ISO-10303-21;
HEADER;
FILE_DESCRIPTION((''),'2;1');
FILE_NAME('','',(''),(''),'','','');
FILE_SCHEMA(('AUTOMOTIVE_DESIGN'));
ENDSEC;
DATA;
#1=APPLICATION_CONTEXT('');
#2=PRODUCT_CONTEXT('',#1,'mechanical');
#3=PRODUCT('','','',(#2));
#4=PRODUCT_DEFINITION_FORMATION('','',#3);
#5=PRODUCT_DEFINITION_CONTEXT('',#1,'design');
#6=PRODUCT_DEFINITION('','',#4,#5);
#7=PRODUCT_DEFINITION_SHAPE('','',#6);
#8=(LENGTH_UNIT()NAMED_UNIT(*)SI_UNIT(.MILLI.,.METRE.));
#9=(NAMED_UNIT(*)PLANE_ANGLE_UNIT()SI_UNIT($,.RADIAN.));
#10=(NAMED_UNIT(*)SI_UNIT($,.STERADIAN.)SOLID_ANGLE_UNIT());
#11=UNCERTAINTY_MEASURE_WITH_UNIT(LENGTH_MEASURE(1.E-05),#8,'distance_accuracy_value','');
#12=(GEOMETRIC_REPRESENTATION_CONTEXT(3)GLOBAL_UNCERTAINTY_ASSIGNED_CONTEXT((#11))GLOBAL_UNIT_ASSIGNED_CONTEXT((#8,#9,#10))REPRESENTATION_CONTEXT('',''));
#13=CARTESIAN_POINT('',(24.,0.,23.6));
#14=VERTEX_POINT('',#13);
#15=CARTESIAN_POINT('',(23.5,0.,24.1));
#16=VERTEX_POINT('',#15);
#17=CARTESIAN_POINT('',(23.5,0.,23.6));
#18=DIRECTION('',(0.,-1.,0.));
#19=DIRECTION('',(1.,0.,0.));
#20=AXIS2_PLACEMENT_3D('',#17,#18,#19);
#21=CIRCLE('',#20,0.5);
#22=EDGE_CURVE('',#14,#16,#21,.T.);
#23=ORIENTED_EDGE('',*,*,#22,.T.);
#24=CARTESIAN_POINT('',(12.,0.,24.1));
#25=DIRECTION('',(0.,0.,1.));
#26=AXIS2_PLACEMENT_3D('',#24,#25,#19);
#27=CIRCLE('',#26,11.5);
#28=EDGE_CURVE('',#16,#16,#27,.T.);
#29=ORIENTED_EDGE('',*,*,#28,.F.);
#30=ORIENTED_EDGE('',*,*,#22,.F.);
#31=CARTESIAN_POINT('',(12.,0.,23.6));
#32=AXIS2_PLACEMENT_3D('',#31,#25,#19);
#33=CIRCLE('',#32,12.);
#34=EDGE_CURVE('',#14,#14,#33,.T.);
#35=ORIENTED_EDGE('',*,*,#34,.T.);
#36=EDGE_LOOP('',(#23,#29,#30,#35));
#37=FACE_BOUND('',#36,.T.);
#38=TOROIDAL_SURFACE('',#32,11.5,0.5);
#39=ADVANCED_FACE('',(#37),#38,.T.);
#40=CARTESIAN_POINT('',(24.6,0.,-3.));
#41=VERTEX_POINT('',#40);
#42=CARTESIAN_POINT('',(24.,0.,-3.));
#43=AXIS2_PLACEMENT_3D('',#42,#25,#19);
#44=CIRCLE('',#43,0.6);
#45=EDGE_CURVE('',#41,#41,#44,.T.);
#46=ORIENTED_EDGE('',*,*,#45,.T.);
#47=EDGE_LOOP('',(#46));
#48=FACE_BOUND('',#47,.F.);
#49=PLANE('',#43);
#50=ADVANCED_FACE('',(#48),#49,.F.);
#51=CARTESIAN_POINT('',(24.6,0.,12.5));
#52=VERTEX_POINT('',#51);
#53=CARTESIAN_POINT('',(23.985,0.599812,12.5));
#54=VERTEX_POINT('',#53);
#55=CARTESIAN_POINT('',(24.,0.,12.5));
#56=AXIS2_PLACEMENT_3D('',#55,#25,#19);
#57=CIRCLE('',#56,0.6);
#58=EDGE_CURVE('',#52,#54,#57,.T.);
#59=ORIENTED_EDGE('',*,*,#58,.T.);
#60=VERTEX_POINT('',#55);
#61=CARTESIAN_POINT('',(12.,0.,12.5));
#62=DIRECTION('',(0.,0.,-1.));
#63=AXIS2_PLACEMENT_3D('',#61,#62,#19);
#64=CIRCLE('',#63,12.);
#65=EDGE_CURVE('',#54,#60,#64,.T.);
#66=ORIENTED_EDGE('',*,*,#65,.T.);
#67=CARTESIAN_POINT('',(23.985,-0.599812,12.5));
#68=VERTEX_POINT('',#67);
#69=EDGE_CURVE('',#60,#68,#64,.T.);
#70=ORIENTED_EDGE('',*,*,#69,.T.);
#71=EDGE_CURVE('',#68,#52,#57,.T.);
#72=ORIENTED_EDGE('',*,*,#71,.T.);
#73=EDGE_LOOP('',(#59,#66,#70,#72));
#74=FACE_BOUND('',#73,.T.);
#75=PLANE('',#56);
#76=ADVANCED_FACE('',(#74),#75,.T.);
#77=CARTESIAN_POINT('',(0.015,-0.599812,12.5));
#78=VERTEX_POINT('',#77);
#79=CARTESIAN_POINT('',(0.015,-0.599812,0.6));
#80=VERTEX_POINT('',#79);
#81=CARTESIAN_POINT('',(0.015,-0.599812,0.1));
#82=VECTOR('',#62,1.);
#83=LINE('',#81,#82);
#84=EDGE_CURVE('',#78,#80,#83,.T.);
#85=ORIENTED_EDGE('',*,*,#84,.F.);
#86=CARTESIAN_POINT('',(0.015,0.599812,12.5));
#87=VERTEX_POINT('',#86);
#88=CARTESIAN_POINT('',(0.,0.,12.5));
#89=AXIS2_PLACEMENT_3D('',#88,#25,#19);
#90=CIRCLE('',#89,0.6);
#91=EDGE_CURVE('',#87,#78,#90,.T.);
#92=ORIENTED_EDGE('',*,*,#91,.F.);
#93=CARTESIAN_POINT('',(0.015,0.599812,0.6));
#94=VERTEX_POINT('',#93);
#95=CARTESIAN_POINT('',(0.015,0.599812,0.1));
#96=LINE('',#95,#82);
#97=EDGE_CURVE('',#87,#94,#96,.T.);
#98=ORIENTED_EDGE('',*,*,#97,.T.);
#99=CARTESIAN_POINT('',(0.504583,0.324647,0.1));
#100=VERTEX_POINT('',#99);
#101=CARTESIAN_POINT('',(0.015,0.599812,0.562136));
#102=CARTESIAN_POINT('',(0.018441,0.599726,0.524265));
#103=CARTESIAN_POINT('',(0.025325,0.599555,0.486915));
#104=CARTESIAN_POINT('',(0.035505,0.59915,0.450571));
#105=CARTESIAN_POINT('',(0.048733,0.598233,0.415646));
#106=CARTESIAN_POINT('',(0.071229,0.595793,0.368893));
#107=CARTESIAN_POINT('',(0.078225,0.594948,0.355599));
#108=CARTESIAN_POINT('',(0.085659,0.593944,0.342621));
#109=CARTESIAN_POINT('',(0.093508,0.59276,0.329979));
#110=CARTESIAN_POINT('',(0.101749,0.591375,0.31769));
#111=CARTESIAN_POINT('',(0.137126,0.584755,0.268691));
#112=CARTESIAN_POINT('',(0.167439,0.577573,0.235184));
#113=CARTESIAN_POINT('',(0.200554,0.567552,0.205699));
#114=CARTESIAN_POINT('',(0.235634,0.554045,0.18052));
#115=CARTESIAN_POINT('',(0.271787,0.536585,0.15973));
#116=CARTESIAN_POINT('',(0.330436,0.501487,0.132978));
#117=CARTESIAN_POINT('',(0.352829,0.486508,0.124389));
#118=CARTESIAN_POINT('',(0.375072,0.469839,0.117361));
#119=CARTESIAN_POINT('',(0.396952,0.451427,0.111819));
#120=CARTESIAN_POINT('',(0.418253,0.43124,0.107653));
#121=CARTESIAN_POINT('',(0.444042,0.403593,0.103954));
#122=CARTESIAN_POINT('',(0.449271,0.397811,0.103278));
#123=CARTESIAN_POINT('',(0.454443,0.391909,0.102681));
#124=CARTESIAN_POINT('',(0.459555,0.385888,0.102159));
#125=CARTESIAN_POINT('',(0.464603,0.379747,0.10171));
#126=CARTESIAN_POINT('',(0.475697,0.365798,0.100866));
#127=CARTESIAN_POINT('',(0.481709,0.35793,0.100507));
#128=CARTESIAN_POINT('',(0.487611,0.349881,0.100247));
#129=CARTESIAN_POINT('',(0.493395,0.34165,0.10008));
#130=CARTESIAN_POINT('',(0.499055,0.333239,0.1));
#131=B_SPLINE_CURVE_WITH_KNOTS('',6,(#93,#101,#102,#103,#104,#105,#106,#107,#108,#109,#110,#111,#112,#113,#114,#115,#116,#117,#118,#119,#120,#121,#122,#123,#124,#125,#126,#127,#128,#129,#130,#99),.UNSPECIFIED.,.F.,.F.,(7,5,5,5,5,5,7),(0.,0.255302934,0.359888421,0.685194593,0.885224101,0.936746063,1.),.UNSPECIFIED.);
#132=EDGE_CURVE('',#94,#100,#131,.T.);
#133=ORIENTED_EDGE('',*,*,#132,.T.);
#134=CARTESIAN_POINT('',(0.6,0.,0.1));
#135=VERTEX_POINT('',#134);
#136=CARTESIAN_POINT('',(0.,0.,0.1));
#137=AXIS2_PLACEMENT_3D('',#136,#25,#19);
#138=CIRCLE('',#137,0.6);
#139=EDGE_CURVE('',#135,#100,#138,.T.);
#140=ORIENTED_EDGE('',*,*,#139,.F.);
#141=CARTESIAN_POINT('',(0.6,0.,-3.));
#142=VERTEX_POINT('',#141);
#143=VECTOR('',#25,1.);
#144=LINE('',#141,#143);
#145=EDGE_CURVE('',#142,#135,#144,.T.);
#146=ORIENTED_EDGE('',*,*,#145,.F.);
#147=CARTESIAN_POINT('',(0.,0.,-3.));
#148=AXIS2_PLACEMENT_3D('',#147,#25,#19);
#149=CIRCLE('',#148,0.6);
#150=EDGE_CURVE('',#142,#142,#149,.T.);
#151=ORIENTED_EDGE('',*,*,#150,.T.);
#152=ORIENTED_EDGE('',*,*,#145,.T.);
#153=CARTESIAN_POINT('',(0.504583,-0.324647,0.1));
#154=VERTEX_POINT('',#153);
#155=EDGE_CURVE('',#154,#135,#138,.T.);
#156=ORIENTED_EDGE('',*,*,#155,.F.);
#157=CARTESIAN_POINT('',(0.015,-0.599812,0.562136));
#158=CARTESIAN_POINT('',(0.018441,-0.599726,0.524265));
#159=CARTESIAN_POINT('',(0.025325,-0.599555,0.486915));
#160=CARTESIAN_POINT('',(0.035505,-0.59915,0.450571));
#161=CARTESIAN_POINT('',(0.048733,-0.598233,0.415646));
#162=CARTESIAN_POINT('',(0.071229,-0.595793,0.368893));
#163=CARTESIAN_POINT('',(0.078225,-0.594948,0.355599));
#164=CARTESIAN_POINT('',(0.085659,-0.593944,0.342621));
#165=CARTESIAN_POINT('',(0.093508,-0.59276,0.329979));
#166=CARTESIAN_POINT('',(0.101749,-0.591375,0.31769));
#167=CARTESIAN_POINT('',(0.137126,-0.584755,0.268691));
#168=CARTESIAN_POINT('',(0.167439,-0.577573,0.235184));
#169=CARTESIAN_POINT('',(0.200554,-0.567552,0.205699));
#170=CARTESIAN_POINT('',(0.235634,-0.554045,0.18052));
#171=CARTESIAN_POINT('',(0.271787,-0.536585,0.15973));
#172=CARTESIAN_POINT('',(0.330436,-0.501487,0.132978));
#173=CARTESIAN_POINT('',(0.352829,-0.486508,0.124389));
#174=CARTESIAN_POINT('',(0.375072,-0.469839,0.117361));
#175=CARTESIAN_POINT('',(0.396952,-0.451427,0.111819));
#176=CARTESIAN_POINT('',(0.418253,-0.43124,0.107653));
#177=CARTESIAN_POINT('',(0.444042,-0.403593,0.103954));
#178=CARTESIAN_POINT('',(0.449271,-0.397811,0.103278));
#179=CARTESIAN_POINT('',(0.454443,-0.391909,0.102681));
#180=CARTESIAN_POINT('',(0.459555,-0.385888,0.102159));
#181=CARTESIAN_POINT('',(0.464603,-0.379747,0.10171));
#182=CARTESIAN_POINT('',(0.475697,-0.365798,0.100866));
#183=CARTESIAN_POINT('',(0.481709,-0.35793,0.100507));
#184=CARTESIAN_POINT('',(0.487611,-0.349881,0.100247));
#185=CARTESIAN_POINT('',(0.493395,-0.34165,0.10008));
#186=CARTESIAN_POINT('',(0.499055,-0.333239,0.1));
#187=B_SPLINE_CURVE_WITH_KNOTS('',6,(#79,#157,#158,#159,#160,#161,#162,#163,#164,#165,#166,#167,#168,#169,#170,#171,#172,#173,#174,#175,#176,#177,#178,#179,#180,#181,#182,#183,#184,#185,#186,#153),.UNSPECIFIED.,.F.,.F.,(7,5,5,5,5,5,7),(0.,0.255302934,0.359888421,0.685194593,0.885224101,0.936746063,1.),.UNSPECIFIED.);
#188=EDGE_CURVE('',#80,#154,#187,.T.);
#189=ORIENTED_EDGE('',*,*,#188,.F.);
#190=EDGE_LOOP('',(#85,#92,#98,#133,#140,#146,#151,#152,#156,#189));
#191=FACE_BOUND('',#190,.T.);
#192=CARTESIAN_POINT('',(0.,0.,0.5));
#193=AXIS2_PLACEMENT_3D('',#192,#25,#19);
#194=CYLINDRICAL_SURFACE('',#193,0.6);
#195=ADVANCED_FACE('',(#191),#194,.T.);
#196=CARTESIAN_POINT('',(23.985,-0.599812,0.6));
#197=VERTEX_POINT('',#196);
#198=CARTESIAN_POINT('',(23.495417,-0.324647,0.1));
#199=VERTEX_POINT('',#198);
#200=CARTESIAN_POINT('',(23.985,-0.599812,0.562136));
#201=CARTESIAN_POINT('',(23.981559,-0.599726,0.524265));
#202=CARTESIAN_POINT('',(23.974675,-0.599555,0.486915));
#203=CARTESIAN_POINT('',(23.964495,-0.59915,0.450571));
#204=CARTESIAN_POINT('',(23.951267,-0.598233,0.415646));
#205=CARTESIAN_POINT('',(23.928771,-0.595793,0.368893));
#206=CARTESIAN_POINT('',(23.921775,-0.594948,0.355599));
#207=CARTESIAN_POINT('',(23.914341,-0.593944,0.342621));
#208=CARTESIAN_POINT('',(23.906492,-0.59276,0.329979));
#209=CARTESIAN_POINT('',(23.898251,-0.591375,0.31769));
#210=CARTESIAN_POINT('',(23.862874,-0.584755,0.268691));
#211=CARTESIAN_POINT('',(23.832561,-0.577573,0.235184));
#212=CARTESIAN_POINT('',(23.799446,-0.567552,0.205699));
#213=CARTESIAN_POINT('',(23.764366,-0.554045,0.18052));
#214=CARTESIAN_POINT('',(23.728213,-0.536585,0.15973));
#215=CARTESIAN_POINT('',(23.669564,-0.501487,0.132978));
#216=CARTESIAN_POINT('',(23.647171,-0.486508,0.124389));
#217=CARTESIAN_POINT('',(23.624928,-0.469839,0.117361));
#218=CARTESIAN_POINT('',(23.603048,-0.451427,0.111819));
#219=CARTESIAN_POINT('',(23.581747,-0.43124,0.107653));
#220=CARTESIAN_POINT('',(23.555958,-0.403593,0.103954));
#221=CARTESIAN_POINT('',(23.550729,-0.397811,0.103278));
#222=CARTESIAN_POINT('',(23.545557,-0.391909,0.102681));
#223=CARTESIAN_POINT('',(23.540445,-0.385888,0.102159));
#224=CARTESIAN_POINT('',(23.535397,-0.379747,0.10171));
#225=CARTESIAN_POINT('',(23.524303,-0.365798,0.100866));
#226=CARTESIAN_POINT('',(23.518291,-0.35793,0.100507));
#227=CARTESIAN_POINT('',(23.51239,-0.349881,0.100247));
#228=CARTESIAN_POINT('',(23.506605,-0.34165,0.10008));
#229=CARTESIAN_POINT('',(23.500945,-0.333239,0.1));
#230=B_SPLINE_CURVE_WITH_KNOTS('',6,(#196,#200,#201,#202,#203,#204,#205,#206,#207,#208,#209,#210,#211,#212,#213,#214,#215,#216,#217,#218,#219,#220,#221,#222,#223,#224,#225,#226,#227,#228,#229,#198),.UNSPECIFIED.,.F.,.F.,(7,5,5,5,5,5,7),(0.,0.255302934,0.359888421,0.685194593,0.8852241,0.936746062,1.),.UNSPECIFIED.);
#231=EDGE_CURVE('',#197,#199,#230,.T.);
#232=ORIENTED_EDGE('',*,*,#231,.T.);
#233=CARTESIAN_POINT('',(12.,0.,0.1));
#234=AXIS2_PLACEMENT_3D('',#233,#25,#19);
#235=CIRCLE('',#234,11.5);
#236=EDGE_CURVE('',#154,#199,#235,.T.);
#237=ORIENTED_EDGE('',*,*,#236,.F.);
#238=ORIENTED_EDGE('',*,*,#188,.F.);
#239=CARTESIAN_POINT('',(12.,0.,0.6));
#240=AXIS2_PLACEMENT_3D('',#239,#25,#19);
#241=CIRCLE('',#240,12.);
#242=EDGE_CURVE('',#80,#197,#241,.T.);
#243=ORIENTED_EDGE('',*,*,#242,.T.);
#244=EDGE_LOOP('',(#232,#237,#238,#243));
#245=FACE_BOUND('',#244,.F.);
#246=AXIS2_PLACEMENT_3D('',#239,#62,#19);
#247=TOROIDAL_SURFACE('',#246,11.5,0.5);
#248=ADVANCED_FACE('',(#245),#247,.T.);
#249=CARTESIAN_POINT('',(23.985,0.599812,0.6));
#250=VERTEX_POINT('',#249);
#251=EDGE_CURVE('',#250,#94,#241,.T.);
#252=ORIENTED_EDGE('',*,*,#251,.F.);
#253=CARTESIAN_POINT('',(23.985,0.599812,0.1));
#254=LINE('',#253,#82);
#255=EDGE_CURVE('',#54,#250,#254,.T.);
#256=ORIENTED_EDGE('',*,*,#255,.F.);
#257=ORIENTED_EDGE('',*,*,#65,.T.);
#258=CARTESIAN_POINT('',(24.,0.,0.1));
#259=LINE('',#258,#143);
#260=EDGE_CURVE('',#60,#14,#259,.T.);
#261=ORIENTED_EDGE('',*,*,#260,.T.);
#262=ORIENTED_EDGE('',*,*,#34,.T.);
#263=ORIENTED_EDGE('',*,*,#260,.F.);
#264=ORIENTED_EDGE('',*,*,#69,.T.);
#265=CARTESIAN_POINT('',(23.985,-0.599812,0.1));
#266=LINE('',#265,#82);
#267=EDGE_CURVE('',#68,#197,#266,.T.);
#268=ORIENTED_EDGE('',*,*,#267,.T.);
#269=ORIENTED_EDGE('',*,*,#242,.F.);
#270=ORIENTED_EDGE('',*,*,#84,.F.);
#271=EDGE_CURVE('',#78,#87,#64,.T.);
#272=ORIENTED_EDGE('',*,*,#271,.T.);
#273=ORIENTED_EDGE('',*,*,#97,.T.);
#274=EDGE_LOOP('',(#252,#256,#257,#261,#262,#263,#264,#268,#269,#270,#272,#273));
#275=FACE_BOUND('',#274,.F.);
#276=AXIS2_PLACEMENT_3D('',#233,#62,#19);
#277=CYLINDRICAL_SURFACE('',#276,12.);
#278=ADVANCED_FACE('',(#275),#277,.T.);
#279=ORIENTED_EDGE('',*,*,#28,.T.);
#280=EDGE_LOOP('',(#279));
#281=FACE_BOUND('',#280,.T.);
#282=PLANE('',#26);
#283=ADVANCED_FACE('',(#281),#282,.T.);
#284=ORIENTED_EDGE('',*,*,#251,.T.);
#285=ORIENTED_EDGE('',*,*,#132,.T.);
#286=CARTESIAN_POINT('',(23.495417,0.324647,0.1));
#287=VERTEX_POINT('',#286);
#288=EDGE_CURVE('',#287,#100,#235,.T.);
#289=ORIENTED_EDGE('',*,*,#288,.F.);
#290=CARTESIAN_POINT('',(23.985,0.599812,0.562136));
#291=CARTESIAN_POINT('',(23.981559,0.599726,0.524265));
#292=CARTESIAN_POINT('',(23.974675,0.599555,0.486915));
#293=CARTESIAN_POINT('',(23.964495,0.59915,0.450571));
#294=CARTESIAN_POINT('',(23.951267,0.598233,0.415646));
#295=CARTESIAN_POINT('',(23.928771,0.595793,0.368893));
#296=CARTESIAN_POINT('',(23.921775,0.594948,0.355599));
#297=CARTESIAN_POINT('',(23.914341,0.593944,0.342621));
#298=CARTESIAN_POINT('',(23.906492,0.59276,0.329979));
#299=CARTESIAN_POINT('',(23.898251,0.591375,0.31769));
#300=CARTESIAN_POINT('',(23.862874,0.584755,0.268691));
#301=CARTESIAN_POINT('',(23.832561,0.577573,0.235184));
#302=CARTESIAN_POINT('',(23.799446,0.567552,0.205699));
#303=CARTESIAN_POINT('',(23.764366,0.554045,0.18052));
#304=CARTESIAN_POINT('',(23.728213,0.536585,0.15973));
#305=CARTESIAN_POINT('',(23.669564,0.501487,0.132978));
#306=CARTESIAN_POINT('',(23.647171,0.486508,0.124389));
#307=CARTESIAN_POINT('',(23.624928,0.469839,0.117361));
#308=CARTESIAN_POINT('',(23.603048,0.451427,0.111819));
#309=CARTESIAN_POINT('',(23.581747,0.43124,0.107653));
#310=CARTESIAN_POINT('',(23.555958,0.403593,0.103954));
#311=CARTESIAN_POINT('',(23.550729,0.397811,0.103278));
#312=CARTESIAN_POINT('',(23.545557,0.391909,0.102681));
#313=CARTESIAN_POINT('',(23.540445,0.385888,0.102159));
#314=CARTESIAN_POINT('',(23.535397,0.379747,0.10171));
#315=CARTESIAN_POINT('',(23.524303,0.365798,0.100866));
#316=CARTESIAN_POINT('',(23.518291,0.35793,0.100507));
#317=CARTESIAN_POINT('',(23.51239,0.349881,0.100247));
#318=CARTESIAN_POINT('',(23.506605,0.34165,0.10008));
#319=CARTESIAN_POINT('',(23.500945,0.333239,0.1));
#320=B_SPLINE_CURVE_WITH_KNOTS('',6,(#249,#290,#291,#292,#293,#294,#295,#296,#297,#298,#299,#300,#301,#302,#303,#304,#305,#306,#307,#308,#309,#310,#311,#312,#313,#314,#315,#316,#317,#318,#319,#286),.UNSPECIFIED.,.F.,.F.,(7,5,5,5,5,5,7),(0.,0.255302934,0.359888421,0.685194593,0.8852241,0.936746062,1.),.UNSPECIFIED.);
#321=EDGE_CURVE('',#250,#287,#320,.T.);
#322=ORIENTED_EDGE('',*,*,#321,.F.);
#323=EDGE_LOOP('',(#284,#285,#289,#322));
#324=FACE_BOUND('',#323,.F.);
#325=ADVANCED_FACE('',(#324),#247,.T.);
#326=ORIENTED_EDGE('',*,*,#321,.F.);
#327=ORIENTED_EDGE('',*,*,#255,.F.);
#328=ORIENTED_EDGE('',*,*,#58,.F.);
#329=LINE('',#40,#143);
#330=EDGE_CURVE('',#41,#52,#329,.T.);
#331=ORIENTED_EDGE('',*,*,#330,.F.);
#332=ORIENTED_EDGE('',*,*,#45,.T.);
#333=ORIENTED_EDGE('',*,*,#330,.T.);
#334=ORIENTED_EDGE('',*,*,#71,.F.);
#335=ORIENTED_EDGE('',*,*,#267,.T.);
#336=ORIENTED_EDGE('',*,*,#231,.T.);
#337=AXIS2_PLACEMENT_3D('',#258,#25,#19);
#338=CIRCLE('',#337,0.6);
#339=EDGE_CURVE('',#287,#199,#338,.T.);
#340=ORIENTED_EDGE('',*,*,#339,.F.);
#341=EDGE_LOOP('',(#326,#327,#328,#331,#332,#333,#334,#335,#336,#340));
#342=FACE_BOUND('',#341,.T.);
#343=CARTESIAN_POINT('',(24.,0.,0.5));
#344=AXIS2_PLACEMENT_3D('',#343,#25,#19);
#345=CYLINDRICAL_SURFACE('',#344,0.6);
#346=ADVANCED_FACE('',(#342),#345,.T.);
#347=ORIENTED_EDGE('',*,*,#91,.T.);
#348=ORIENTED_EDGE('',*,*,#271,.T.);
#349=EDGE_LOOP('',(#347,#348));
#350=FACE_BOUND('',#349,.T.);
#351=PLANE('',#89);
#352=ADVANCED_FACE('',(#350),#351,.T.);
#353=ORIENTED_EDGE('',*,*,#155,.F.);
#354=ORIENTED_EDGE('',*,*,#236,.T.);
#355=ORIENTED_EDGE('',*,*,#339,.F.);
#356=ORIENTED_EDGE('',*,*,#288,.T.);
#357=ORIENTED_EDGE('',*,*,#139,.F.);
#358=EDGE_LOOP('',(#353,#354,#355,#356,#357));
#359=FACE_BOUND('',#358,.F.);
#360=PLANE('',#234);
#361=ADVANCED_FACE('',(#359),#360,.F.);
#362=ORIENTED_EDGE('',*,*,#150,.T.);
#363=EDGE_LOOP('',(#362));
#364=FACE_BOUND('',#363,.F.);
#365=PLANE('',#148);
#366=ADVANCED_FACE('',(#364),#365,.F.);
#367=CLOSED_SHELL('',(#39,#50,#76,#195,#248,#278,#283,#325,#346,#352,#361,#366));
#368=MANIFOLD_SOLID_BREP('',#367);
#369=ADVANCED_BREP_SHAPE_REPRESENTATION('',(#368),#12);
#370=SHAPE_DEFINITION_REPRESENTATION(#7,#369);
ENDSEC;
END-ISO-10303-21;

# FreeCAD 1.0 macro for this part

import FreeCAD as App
import Part
import Sketcher
from FreeCAD import Vector


def edges_at(feature, points):
    """Names of the edges that pass closest to the given points."""
    edges = feature.Shape.Edges
    near = lambda p: min(range(len(edges)), key=lambda i: edges[i].distToShape(Part.Vertex(*p))[0])
    return sorted({f"Edge{near(p) + 1}" for p in points})

doc = App.newDocument("Part")
body = doc.addObject("PartDesign::Body", "Body")
body.AllowCompound = True

# Sketch on XY plane
sketch1 = doc.addObject("Sketcher::SketchObject", "Sketch")
body.addObject(sketch1)
sketch1.AttachmentSupport = (doc.XY_Plane, [""])
sketch1.MapMode = "FlatFace"
sketch1.AttachmentOffset = App.Placement(Vector(0, 0, 0.5), App.Rotation())
sketch1.addGeometry(Part.Circle(Vector(0, 0, 0), Vector(0, 0, 1), 0.6), False)
sketch1.addGeometry(Part.Circle(Vector(24, 0, 0), Vector(0, 0, 1), 0.6), False)
sketch1.addConstraint(Sketcher.Constraint("Coincident", 0, 3, -1, 1))
sketch1.addConstraint(Sketcher.Constraint("Equal", 0, 1))
sketch1.addConstraint(Sketcher.Constraint("PointOnObject", 1, 3, -1))
sketch1.addConstraint(Sketcher.Constraint("Diameter", 0, 1.2))
sketch1.addConstraint(Sketcher.Constraint("DistanceX", -1, 1, 1, 3, 24.0))
pad1 = doc.addObject("PartDesign::Pad", "Pad")
body.addObject(pad1)
pad1.Profile = sketch1
pad1.Type = "TwoLengths"
pad1.Length = 12
pad1.Length2 = 3.5
body2 = doc.addObject("PartDesign::Body", "Body001")

# Sketch on XY plane
sketch2 = doc.addObject("Sketcher::SketchObject", "Sketch001")
body2.addObject(sketch2)
sketch2.AttachmentSupport = (doc.getObject("XY_Plane001"), [""])
sketch2.MapMode = "FlatFace"
sketch2.AttachmentOffset = App.Placement(Vector(0, 0, 0.1), App.Rotation())
sketch2.addGeometry(Part.Circle(Vector(12, 0, 0), Vector(0, 0, 1), 12), False)
sketch2.addConstraint(Sketcher.Constraint("PointOnObject", 0, 3, -1))
sketch2.addConstraint(Sketcher.Constraint("Diameter", 0, 24.0))
sketch2.addConstraint(Sketcher.Constraint("DistanceX", -1, 1, 0, 3, 12.0))
pad2 = doc.addObject("PartDesign::Pad", "Pad001")
body2.addObject(pad2)
pad2.Profile = sketch2
pad2.Length = 24
doc.recompute()

fillet = doc.addObject("PartDesign::Fillet", "Fillet")
body2.addObject(fillet)
fillet.Base = (pad2, edges_at(pad2, [(0, 0, 0.1), (0, 0, 24.1)]))
fillet.Radius = 0.5
doc.recompute()

boolean = doc.addObject("PartDesign::Boolean", "Boolean")
body2.addObject(boolean)
boolean.Type = "Fuse"
boolean.addObjects([body])

doc.recompute()
